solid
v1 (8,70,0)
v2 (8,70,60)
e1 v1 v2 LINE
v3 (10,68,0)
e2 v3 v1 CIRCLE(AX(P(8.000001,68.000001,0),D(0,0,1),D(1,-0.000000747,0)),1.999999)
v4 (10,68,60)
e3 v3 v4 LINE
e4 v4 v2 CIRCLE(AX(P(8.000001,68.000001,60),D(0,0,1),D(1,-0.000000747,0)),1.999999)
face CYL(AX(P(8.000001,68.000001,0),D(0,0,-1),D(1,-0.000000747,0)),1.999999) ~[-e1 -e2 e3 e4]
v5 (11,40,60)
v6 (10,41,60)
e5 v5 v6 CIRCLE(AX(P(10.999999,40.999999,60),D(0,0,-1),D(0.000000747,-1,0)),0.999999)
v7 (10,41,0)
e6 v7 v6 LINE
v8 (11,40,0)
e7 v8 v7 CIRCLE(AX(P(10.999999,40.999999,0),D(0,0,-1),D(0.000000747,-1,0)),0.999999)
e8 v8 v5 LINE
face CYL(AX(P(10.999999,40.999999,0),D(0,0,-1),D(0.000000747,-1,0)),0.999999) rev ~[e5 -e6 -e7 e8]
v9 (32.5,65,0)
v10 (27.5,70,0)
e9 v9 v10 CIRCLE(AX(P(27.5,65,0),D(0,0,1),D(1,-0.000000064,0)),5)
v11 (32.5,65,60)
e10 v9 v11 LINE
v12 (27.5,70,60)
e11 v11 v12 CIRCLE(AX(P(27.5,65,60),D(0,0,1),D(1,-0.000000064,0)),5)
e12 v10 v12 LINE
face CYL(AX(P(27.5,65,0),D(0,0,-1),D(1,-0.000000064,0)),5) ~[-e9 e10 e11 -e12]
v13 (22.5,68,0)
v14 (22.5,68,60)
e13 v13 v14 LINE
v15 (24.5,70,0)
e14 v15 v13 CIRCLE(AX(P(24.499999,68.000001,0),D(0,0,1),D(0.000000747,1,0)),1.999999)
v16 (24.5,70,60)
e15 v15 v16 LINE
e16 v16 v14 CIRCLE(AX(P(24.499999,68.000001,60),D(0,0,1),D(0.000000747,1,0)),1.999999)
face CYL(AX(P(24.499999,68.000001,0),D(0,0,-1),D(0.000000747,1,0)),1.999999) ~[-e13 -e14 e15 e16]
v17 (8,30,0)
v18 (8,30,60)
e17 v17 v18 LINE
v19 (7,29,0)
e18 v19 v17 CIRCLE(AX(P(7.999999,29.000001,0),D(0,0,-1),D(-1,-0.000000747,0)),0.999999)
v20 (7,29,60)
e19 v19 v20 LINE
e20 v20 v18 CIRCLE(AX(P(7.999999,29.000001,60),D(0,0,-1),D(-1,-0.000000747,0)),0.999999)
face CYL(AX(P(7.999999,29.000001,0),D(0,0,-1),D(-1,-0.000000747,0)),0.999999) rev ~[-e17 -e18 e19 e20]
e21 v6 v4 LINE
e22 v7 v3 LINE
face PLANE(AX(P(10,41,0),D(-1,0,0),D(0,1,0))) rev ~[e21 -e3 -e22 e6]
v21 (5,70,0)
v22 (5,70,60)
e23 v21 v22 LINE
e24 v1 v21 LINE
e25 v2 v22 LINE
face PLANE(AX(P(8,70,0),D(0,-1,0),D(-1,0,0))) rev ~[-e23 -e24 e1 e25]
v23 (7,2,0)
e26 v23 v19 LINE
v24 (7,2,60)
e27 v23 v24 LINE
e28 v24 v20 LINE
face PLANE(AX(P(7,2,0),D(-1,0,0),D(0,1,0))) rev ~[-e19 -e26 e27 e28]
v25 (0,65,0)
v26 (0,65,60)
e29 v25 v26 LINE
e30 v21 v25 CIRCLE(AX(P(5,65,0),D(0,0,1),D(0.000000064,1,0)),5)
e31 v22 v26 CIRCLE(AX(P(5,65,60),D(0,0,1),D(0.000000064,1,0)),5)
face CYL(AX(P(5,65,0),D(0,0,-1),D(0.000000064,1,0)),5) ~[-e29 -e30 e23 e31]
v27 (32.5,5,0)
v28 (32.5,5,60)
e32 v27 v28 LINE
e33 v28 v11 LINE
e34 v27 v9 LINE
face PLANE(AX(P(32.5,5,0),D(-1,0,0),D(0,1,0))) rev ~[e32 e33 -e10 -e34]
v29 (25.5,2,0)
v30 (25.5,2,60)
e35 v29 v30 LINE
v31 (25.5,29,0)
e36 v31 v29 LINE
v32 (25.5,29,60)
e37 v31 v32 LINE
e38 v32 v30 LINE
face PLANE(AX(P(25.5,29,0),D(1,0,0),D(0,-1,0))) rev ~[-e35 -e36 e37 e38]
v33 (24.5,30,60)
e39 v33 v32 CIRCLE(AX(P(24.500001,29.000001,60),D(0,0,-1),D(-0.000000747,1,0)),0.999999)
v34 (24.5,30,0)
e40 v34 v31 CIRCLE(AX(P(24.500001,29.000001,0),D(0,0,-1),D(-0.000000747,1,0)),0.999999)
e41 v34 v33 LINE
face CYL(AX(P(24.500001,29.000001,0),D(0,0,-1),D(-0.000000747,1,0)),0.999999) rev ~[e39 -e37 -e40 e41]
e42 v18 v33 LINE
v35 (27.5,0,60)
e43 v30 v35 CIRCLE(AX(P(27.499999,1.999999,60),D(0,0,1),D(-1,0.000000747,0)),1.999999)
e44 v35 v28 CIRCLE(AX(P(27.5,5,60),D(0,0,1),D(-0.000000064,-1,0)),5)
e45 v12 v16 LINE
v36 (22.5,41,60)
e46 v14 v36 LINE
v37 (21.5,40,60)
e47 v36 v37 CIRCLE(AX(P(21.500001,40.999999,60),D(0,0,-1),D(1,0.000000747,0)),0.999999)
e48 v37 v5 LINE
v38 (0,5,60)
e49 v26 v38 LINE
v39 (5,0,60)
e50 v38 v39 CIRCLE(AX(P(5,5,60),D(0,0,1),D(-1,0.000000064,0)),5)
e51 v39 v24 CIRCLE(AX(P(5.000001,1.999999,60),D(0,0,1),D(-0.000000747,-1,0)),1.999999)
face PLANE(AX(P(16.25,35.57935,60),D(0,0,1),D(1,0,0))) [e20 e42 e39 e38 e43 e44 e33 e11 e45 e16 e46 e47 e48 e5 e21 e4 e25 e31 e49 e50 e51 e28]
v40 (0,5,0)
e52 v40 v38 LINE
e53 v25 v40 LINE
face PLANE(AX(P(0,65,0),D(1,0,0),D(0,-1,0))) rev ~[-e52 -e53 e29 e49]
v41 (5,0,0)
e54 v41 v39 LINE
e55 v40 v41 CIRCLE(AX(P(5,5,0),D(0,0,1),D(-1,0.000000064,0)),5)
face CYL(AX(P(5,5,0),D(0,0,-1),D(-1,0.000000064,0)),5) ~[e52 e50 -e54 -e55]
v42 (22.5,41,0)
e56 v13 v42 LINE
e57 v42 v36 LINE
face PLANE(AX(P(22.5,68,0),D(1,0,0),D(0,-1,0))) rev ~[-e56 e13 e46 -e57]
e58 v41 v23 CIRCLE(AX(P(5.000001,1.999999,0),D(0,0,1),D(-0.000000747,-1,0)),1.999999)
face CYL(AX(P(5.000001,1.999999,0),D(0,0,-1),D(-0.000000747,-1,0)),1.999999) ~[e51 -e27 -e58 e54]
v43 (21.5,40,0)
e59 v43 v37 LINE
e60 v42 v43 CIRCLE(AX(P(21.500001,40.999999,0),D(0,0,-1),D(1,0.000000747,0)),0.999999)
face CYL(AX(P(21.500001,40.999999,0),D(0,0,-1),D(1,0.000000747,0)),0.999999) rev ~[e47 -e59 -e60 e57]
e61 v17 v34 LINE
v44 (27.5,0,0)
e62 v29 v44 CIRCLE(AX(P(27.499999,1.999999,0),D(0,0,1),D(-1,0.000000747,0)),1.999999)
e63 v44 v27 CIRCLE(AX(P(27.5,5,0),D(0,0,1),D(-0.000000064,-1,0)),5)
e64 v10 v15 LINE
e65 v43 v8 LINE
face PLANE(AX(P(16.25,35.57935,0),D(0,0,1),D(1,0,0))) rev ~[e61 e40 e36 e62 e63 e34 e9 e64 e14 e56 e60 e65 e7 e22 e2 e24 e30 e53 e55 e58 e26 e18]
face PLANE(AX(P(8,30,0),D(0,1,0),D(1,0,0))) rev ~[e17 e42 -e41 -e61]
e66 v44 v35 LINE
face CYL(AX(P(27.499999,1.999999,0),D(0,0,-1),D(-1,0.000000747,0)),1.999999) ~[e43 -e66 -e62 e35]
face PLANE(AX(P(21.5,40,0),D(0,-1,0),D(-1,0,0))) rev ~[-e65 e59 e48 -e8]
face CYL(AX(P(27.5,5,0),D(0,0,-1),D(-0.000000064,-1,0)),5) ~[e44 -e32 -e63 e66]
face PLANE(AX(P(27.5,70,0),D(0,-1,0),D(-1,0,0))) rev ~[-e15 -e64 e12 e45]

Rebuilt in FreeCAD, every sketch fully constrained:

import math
import FreeCAD as App
import Part
import Sketcher

V = App.Vector
Q = App.Units.Quantity

doc = App.newDocument("Part")
body = doc.addObject("PartDesign::Body", "Body")

sketch1 = body.newObject("Sketcher::SketchObject", "Sketch")
sketch1.AttachmentSupport = (doc.getObject("XY_Plane"), [""])
sketch1.MapMode = "FlatFace"
sketch1.addGeometry([
    Part.LineSegment(V(0, 65, 0), V(0, 5, 0)),
    Part.ArcOfCircle(Part.Circle(V(5, 5, 0), V(0, 0, 1), 5), math.radians(180), math.radians(270)),
    Part.ArcOfCircle(Part.Circle(V(5, 2, 0), V(0, 0, 1), 2), math.radians(-90), math.radians(0)),
    Part.LineSegment(V(7, 2, 0), V(7, 29, 0)),
    Part.ArcOfCircle(Part.Circle(V(8, 29, 0), V(0, 0, 1), 1), math.radians(90), math.radians(180)),
    Part.LineSegment(V(8, 30, 0), V(24.5, 30, 0)),
    Part.ArcOfCircle(Part.Circle(V(24.5, 29, 0), V(0, 0, 1), 1), math.radians(0), math.radians(90)),
    Part.LineSegment(V(25.5, 29, 0), V(25.5, 2, 0)),
    Part.ArcOfCircle(Part.Circle(V(27.5, 2, 0), V(0, 0, 1), 2), math.radians(180), math.radians(270)),
    Part.ArcOfCircle(Part.Circle(V(27.5, 5, 0), V(0, 0, 1), 5), math.radians(-90), math.radians(0)),
    Part.LineSegment(V(32.5, 5, 0), V(32.5, 65, 0)),
    Part.ArcOfCircle(Part.Circle(V(27.5, 65, 0), V(0, 0, 1), 5), math.radians(0), math.radians(90)),
    Part.LineSegment(V(27.5, 70, 0), V(24.5, 70, 0)),
    Part.ArcOfCircle(Part.Circle(V(24.5, 68, 0), V(0, 0, 1), 2), math.radians(90), math.radians(180)),
    Part.LineSegment(V(22.5, 68, 0), V(22.5, 41, 0)),
    Part.ArcOfCircle(Part.Circle(V(21.5, 41, 0), V(0, 0, 1), 1), math.radians(-90), math.radians(0)),
    Part.LineSegment(V(21.5, 40, 0), V(11, 40, 0)),
    Part.ArcOfCircle(Part.Circle(V(11, 41, 0), V(0, 0, 1), 1), math.radians(180), math.radians(270)),
    Part.LineSegment(V(10, 41, 0), V(10, 68, 0)),
    Part.ArcOfCircle(Part.Circle(V(8, 68, 0), V(0, 0, 1), 2), math.radians(0), math.radians(90)),
    Part.LineSegment(V(8, 70, 0), V(5, 70, 0)),
    Part.ArcOfCircle(Part.Circle(V(5, 65, 0), V(0, 0, 1), 5), math.radians(90), math.radians(180)),
], False)
sketch1.addConstraint([
    Sketcher.Constraint("Tangent", 0, 2, 1, 1),
    Sketcher.Constraint("Tangent", 1, 2, 2, 1),
    Sketcher.Constraint("Tangent", 2, 2, 3, 1),
    Sketcher.Constraint("Tangent", 3, 2, 4, 2),
    Sketcher.Constraint("Tangent", 4, 1, 5, 1),
    Sketcher.Constraint("Tangent", 5, 2, 6, 2),
    Sketcher.Constraint("Tangent", 6, 1, 7, 1),
    Sketcher.Constraint("Tangent", 7, 2, 8, 1),
    Sketcher.Constraint("Tangent", 8, 2, 9, 1),
    Sketcher.Constraint("Tangent", 9, 2, 10, 1),
    Sketcher.Constraint("Tangent", 10, 2, 11, 1),
    Sketcher.Constraint("Tangent", 11, 2, 12, 1),
    Sketcher.Constraint("Tangent", 12, 2, 13, 1),
    Sketcher.Constraint("Tangent", 13, 2, 14, 1),
    Sketcher.Constraint("Tangent", 14, 2, 15, 2),
    Sketcher.Constraint("Tangent", 15, 1, 16, 1),
    Sketcher.Constraint("Tangent", 16, 2, 17, 2),
    Sketcher.Constraint("Tangent", 17, 1, 18, 1),
    Sketcher.Constraint("Tangent", 18, 2, 19, 1),
    Sketcher.Constraint("Tangent", 19, 2, 20, 1),
    Sketcher.Constraint("Tangent", 20, 2, 21, 1),
    Sketcher.Constraint("Tangent", 21, 2, 0, 1),
    Sketcher.Constraint("Vertical", 0),
    Sketcher.Constraint("Vertical", 3),
    Sketcher.Constraint("Horizontal", 5),
    Sketcher.Constraint("Vertical", 7),
    Sketcher.Constraint("Vertical", 10),
    Sketcher.Constraint("Horizontal", 12),
    Sketcher.Constraint("Vertical", 14),
    Sketcher.Constraint("Horizontal", 16),
    Sketcher.Constraint("Vertical", 18),
    Sketcher.Constraint("Horizontal", 20),
    Sketcher.Constraint("Equal", 4, 6),
    Sketcher.Constraint("Equal", 2, 8),
    Sketcher.Constraint("Equal", 1, 9),
    Sketcher.Constraint("Equal", 9, 11),
    Sketcher.Constraint("Equal", 8, 13),
    Sketcher.Constraint("Equal", 6, 15),
    Sketcher.Constraint("Equal", 15, 17),
    Sketcher.Constraint("Equal", 13, 19),
    Sketcher.Constraint("Equal", 11, 21),
    Sketcher.Constraint("PointOnObject", 0, 2, -2),
    Sketcher.Constraint("PointOnObject", 1, 2, -1),
    Sketcher.Constraint("PointOnObject", 8, 2, -1),
    Sketcher.Constraint("Horizontal", 13, 3, 19, 3),
    Sketcher.Constraint("Vertical", 1, 3, 2, 3),
    Sketcher.Constraint("Vertical", 8, 3, 9, 3),
    Sketcher.Constraint("Vertical", 19, 3, 4, 1),
    Sketcher.Constraint("Vertical", 13, 3, 5, 2),
    Sketcher.Constraint("Equal", 7, 14),
    Sketcher.Constraint("Radius", 1, Q("5 mm")),
    Sketcher.Constraint("Radius", 2, Q("1.999999 mm")),
    Sketcher.Constraint("Radius", 4, Q("0.999999 mm")),
    Sketcher.Constraint("DistanceY", 0, 2, 0, 1, Q("60 mm")),
    Sketcher.Constraint("DistanceY", 3, 1, 3, 2, Q("27 mm")),
    Sketcher.Constraint("DistanceX", 5, 1, 5, 2, Q("16.5 mm")),
])
pad1 = body.newObject("PartDesign::Pad", "Pad")
pad1.Profile = sketch1
pad1.Length = 60

doc.recompute()
